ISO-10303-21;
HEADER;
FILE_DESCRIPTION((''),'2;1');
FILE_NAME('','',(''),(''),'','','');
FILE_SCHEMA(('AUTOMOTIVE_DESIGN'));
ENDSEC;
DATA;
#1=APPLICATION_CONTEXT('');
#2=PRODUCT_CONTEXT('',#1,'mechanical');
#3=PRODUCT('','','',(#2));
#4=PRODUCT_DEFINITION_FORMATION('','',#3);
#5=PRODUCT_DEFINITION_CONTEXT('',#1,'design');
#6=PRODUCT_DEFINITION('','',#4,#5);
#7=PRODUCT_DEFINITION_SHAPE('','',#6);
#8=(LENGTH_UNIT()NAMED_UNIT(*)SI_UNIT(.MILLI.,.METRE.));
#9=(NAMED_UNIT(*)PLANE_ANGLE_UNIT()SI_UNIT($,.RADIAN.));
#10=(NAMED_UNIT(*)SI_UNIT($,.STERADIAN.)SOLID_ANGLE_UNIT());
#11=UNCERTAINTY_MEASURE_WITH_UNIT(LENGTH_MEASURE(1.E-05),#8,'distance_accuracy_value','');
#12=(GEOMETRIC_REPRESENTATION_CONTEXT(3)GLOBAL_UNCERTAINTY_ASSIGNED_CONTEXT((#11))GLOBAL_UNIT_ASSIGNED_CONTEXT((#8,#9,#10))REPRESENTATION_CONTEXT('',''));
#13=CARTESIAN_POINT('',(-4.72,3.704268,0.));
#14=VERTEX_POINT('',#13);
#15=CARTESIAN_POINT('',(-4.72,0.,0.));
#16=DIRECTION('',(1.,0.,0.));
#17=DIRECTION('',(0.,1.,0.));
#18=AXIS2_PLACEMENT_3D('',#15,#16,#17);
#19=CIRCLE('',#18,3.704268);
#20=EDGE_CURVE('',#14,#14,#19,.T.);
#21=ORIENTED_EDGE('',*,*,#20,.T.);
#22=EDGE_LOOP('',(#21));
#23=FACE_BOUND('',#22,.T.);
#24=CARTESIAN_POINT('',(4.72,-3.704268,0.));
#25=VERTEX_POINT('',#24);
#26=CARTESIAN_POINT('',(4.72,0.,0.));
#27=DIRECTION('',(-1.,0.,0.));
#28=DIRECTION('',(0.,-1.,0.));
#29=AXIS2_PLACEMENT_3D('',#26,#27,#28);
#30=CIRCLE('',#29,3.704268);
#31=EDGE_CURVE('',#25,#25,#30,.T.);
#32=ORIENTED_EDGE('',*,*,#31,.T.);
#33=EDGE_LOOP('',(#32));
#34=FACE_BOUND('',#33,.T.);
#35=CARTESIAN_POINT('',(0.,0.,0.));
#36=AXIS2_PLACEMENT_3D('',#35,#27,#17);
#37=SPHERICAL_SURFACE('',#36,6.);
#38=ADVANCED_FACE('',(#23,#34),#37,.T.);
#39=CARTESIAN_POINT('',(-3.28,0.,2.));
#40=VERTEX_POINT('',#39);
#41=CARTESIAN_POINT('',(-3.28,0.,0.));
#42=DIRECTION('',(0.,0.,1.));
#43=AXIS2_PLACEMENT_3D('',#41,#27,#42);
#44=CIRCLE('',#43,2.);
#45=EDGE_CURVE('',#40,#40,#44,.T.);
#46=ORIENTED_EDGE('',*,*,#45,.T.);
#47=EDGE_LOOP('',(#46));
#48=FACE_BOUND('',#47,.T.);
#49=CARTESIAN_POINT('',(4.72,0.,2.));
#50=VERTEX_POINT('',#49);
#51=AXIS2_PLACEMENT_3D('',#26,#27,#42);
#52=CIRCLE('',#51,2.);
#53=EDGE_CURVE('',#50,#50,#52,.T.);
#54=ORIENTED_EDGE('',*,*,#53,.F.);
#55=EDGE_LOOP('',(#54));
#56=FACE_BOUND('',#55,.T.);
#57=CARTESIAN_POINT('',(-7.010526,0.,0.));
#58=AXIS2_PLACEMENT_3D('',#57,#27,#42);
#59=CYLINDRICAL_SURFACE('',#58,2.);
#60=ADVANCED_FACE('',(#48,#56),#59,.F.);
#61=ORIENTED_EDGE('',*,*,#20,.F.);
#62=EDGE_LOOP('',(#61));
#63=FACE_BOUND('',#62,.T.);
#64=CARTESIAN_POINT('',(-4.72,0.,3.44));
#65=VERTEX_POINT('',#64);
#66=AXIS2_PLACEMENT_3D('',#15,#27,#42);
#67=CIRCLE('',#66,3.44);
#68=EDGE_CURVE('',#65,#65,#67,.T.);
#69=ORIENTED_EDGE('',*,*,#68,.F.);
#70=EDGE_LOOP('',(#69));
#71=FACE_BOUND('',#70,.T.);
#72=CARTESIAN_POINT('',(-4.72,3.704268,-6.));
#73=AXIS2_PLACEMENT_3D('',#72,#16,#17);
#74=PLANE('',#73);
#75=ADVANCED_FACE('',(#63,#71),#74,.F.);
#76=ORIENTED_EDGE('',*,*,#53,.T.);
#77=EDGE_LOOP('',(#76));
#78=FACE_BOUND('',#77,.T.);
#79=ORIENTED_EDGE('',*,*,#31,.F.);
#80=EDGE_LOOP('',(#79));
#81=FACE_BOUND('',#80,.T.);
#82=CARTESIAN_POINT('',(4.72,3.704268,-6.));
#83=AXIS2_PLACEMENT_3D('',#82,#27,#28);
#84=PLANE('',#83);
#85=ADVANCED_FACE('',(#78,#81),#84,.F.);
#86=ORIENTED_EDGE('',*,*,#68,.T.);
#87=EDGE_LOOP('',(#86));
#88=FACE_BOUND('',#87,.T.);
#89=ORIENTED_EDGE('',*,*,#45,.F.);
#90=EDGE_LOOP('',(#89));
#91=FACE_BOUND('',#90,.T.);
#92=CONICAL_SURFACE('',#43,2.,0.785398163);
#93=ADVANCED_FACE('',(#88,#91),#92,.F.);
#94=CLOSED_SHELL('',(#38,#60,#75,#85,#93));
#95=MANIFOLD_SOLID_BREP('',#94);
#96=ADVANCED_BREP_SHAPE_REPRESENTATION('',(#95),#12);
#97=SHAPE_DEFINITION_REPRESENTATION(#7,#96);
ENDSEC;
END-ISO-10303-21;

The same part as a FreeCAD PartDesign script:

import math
import FreeCAD as App
import Part
import Sketcher

V = App.Vector
Q = App.Units.Quantity


def add_polygon(sketch, points):
    """Adds a closed chain of lines whose ends are joined by coincident constraints."""
    first, n = sketch.GeometryCount, len(points)
    for a, b in zip(points, points[1:] + points[:1]):
        sketch.addGeometry(Part.LineSegment(App.Vector(*a, 0), App.Vector(*b, 0)), False)
    for i in range(n):
        sketch.addConstraint(Sketcher.Constraint("Coincident", first + i, 2, first + (i + 1) % n, 1))

doc = App.newDocument("Part")
body = doc.addObject("PartDesign::Body", "Body")

sketch1 = body.newObject("Sketcher::SketchObject", "Sketch")
sketch1.AttachmentSupport = (doc.getObject("XY_Plane"), [""])
sketch1.MapMode = "FlatFace"
sketch1.addGeometry([
    Part.LineSegment(V(-6, 0, 0), V(6, 0, 0)),
    Part.ArcOfCircle(Part.Circle(V(0, 0, 0), V(0, 0, 1), 6), math.radians(0), math.radians(180)),
], False)
sketch1.addConstraint([
    Sketcher.Constraint("Coincident", 0, 1, 1, 2),
    Sketcher.Constraint("Coincident", 1, 1, 0, 2),
    Sketcher.Constraint("Horizontal", 0),
    Sketcher.Constraint("Coincident", 1, 3, -1, 1),
    Sketcher.Constraint("PointOnObject", 0, 1, -1),
    Sketcher.Constraint("Radius", 1, 6.0),
])
revolution = body.newObject("PartDesign::Revolution", "Revolution")
revolution.Profile = sketch1
revolution.ReferenceAxis = (sketch1, ["H_Axis"])
revolution.Angle = 360

sketch2 = body.newObject("Sketcher::SketchObject", "Sketch001")
sketch2.AttachmentSupport = (doc.getObject("XY_Plane"), [""])
sketch2.MapMode = "FlatFace"
sketch2.addGeometry([
    Part.LineSegment(V(-5, -4, 0), V(-5, 4, 0)),
    Part.ArcOfCircle(Part.Circle(V(0, 0, 0), V(0, 0, 1), 6), math.radians(142), math.radians(218)),
    Part.LineSegment(V(5, 4, 0), V(5, -4, 0)),
    Part.ArcOfCircle(Part.Circle(V(0, 0, 0), V(0, 0, 1), 6), math.radians(-38), math.radians(38)),
], False)
sketch2.addConstraint([
    Sketcher.Constraint("Coincident", 0, 1, 1, 2),
    Sketcher.Constraint("Coincident", 1, 1, 0, 2),
    Sketcher.Constraint("Coincident", 2, 1, 3, 2),
    Sketcher.Constraint("Coincident", 3, 1, 2, 2),
    Sketcher.Constraint("Vertical", 0),
    Sketcher.Constraint("Vertical", 2),
    Sketcher.Constraint("Coincident", 1, 3, -1, 1),
    Sketcher.Constraint("Coincident", 3, 3, -1, 1),
    Sketcher.Constraint("Equal", 1, 3),
    Sketcher.Constraint("Horizontal", 1, 1, 2, 1),
    Sketcher.Constraint("Radius", 1, 6.0),
    Sketcher.Constraint("DistanceX", 0, 1, -1, 1, 4.72),
])
pocket1 = body.newObject("PartDesign::Pocket", "Pocket")
pocket1.Profile = sketch2
pocket1.Type = "ThroughAll"
pocket1.Midplane = True

sketch3 = body.newObject("Sketcher::SketchObject", "Sketch002")
sketch3.AttachmentSupport = (doc.getObject("XY_Plane"), [""])
sketch3.MapMode = "FlatFace"
add_polygon(sketch3, [(-3.3, 2), (-4.7, 3.4), (-4.7, 0), (4.7, 0), (4.7, 2)])
sketch3.addConstraint([
    Sketcher.Constraint("Vertical", 1),
    Sketcher.Constraint("Horizontal", 2),
    Sketcher.Constraint("Vertical", 3),
    Sketcher.Constraint("Horizontal", 4),
    Sketcher.Constraint("Symmetric", 1, 2, 2, 2, -1, 1),
    Sketcher.Constraint("DistanceX", 4, 2, 4, 1, 8.0),
    Sketcher.Constraint("DistanceY", 3, 1, 3, 2, 2.0),
    Sketcher.Constraint("Angle", 0, Q("135 deg")),
    Sketcher.Constraint("DistanceX", 2, 1, 2, 2, 9.44),
])
groove = body.newObject("PartDesign::Groove", "Groove")
groove.Profile = sketch3
groove.ReferenceAxis = (sketch3, ["H_Axis"])
groove.Angle = 360

doc.recompute()
